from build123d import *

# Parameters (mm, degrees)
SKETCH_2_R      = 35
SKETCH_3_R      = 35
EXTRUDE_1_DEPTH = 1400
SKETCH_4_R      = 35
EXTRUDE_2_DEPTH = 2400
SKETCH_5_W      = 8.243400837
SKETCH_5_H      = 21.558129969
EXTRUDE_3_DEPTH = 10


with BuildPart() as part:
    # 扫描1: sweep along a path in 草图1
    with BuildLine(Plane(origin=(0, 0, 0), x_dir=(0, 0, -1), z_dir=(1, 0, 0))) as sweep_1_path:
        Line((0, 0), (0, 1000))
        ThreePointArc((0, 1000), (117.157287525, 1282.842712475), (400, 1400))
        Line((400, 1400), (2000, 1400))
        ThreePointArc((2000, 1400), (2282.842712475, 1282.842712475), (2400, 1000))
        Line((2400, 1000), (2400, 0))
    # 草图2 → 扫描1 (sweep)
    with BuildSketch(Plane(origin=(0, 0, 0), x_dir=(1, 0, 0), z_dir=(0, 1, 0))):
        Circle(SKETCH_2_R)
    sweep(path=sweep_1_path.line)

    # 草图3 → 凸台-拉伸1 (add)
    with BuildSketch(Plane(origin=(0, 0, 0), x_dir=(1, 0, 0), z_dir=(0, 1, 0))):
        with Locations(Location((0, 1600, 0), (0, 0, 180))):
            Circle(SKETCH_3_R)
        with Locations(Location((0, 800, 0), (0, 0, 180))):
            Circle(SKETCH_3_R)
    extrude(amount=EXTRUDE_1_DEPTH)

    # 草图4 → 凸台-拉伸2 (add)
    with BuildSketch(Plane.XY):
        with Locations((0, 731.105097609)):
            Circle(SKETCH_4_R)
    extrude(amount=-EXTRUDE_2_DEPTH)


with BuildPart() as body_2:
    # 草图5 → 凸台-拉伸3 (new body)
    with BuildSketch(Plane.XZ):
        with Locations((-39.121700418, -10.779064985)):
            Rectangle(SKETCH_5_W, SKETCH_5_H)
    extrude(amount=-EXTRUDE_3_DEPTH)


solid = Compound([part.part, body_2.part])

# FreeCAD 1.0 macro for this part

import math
import FreeCAD as App
import Part
import Sketcher

doc = App.newDocument("Part")
body = doc.addObject("PartDesign::Body", "Body")

# Sketch on XZ plane
sketch1 = doc.addObject("Sketcher::SketchObject", "Sketch")
body.addObject(sketch1)
sketch1.AttachmentSupport = (doc.XZ_Plane, [""])
sketch1.MapMode = "FlatFace"
sketch1.addGeometry(Part.Circle(App.Vector(0, 0, 0), App.Vector(0, 0, 1), 35), False)
sketch1.addConstraint([
    Sketcher.Constraint("Coincident", 0, 3, -1, 1),
    Sketcher.Constraint("Diameter", 0, 70.0),
])

# Sketch on YZ plane
sketch2 = doc.addObject("Sketcher::SketchObject", "Sketch001")
body.addObject(sketch2)
sketch2.AttachmentSupport = (doc.YZ_Plane, [""])
sketch2.MapMode = "FlatFace"
sketch2.addGeometry([
    Part.LineSegment(App.Vector(0, 0, 0), App.Vector(1000, 0, 0)),  # 0
    Part.ArcOfCircle(Part.Circle(App.Vector(1000, -400, 0), App.Vector(0, 0, 1), 400), math.radians(0), math.radians(90)),  # 1
    Part.LineSegment(App.Vector(1400, -400, 0), App.Vector(1400, -2000, 0)),  # 2
    Part.ArcOfCircle(Part.Circle(App.Vector(1000, -2000, 0), App.Vector(0, 0, 1), 400), math.radians(-90), math.radians(0)),  # 3
    Part.LineSegment(App.Vector(1000, -2400, 0), App.Vector(0, -2400, 0)),  # 4
], False)
sketch2.addConstraint([
    Sketcher.Constraint("Tangent", 0, 2, 1, 2),
    Sketcher.Constraint("Tangent", 1, 1, 2, 1),
    Sketcher.Constraint("Tangent", 2, 2, 3, 2),
    Sketcher.Constraint("Tangent", 3, 1, 4, 1),
    Sketcher.Constraint("Horizontal", 0),
    Sketcher.Constraint("Vertical", 2),
    Sketcher.Constraint("Horizontal", 4),
    Sketcher.Constraint("Coincident", 0, 1, -1, 1),
    Sketcher.Constraint("Equal", 1, 3),
    Sketcher.Constraint("PointOnObject", 4, 2, -2),
    Sketcher.Constraint("Radius", 1, 400.0),
    Sketcher.Constraint("DistanceX", 0, 1, 0, 2, 1000.0),
    Sketcher.Constraint("DistanceY", 2, 2, 2, 1, 1600.0),
])
doc.recompute()

additivepipe = doc.addObject("PartDesign::AdditivePipe", "AdditivePipe")
body.addObject(additivepipe)
additivepipe.Profile = sketch1
additivepipe.Spine = (sketch2, ["Edge1", "Edge2", "Edge3", "Edge4", "Edge5"])

# Sketch on XZ plane
sketch3 = doc.addObject("Sketcher::SketchObject", "Sketch002")
body.addObject(sketch3)
sketch3.AttachmentSupport = (doc.XZ_Plane, [""])
sketch3.MapMode = "FlatFace"
sketch3.addGeometry([
    Part.Circle(App.Vector(0, -1600, 0), App.Vector(0, 0, 1), 35),
    Part.Circle(App.Vector(0, -800, 0), App.Vector(0, 0, 1), 35),
], False)
sketch3.addConstraint([
    Sketcher.Constraint("Equal", 0, 1),
    Sketcher.Constraint("PointOnObject", 0, 3, -2),
    Sketcher.Constraint("PointOnObject", 1, 3, -2),
    Sketcher.Constraint("Diameter", 0, 70.0),
    Sketcher.Constraint("DistanceY", 0, 3, -1, 1, 1600.0),
    Sketcher.Constraint("DistanceY", 1, 3, -1, 1, 800.0),
])
pad1 = doc.addObject("PartDesign::Pad", "Pad")
body.addObject(pad1)
pad1.Profile = sketch3
pad1.Length = 1400
pad1.Reversed = True

# Sketch on XY plane
sketch4 = doc.addObject("Sketcher::SketchObject", "Sketch003")
body.addObject(sketch4)
sketch4.AttachmentSupport = (doc.XY_Plane, [""])
sketch4.MapMode = "FlatFace"
sketch4.addGeometry(Part.Circle(App.Vector(0, 731, 0), App.Vector(0, 0, 1), 35), False)
sketch4.addConstraint([
    Sketcher.Constraint("PointOnObject", 0, 3, -2),
    Sketcher.Constraint("Diameter", 0, 70.0),
    Sketcher.Constraint("DistanceY", -1, 1, 0, 3, 731.105098),
])
pad2 = doc.addObject("PartDesign::Pad", "Pad001")
body.addObject(pad2)
pad2.Profile = sketch4
pad2.Length = 2400
pad2.Reversed = True
body2 = doc.addObject("PartDesign::Body", "Body001")

# Sketch on XZ plane
sketch5 = doc.addObject("Sketcher::SketchObject", "Sketch004")
body2.addObject(sketch5)
sketch5.AttachmentSupport = (doc.getObject("XZ_Plane001"), [""])
sketch5.MapMode = "FlatFace"
sketch5.addGeometry([
    Part.LineSegment(App.Vector(-43, 0, 0), App.Vector(-43, -22, 0)),
    Part.LineSegment(App.Vector(-43, -22, 0), App.Vector(-35, -22, 0)),
    Part.LineSegment(App.Vector(-35, -22, 0), App.Vector(-35, 0, 0)),
    Part.LineSegment(App.Vector(-35, 0, 0), App.Vector(-43, 0, 0)),
], False)
sketch5.addConstraint([
    Sketcher.Constraint("Coincident", 0, 2, 1, 1),
    Sketcher.Constraint("Coincident", 1, 2, 2, 1),
    Sketcher.Constraint("Coincident", 2, 2, 3, 1),
    Sketcher.Constraint("Coincident", 3, 2, 0, 1),
    Sketcher.Constraint("Vertical", 0),
    Sketcher.Constraint("Horizontal", 1),
    Sketcher.Constraint("Vertical", 2),
    Sketcher.Constraint("Horizontal", 3),
    Sketcher.Constraint("PointOnObject", 2, 2, -1),
    Sketcher.Constraint("DistanceX", 1, 2, -1, 1, 35.0),
    Sketcher.Constraint("DistanceX", 1, 1, 1, 2, 8.243401),
    Sketcher.Constraint("DistanceY", 0, 2, 0, 1, 21.55813),
])
pad3 = doc.addObject("PartDesign::Pad", "Pad002")
body2.addObject(pad3)
pad3.Profile = sketch5
pad3.Length = 10
pad3.Reversed = True

doc.recompute()
